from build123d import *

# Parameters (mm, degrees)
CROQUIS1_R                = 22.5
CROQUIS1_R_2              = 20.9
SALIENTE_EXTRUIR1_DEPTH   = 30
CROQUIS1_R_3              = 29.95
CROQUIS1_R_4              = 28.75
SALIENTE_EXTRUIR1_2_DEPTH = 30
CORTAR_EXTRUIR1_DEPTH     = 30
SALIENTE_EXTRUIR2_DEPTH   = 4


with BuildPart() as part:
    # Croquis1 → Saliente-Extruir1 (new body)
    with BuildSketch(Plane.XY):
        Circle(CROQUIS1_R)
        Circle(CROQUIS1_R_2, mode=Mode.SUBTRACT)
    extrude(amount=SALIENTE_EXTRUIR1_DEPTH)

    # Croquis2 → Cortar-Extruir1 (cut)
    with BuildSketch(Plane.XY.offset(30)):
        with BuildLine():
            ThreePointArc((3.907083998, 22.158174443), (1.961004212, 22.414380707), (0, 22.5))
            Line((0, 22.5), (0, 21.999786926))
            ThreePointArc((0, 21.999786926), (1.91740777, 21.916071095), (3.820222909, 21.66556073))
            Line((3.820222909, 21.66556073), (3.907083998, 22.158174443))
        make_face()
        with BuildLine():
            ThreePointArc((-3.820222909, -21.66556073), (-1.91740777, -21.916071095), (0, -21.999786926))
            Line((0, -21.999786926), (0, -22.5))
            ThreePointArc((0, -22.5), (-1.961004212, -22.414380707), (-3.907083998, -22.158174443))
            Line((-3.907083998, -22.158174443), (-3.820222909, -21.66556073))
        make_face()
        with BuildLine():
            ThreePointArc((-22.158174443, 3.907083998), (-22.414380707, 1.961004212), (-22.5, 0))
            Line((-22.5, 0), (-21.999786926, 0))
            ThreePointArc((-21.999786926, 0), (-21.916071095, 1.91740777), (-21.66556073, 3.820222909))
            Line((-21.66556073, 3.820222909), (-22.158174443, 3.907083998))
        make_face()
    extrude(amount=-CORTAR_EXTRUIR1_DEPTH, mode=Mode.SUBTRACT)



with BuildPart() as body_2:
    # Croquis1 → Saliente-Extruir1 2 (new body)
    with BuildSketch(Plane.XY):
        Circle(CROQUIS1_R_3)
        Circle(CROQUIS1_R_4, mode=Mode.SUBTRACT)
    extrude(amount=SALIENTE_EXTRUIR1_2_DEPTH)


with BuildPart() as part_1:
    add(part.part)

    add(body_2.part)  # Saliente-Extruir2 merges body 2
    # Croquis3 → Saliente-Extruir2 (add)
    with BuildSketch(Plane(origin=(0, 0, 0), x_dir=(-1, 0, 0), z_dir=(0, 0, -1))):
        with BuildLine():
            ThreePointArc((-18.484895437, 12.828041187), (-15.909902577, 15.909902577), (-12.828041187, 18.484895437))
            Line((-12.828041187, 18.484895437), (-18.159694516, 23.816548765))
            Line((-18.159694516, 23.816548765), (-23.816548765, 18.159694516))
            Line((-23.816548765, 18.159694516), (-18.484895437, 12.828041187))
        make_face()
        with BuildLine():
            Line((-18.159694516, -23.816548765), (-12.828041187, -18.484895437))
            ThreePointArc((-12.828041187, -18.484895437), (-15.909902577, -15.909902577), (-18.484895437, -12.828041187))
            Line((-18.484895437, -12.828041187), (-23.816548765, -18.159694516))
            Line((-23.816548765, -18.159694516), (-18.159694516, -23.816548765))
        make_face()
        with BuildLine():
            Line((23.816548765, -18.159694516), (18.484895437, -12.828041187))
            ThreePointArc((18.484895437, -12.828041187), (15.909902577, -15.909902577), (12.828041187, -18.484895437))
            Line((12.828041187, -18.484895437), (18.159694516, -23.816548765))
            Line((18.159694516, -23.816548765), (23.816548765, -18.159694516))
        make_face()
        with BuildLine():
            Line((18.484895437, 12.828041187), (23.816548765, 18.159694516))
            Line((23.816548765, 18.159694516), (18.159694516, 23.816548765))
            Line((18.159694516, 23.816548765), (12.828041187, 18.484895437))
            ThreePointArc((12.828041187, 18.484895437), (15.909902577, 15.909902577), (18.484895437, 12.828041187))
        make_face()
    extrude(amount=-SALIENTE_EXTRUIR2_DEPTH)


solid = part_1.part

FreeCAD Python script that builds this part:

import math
import FreeCAD as App
import Part
import Sketcher
from FreeCAD import Vector
Q = App.Units.Quantity

doc = App.newDocument("Part")
body = doc.addObject("PartDesign::Body", "Body")

# Sketch on XY plane
sketch1 = body.newObject("Sketcher::SketchObject", "Sketch")
sketch1.AttachmentSupport = (doc.getObject("XY_Plane"), [""])
sketch1.MapMode = "FlatFace"
sketch1.addGeometry([
    Part.Circle(Vector(0, 0, 0), Vector(0, 0, 1), 22),
    Part.Circle(Vector(0, 0, 0), Vector(0, 0, 1), 21),
], False)
sketch1.addConstraint([
    Sketcher.Constraint("Coincident", 0, 3, -1, 1),
    Sketcher.Constraint("Coincident", 1, 3, -1, 1),
    Sketcher.Constraint("Diameter", 0, 45.0),
    Sketcher.Constraint("Diameter", 1, 41.8),
])
pad1 = body.newObject("PartDesign::Pad", "Pad")
pad1.Profile = sketch1
pad1.Length = 30

# Sketch on XY plane
sketch2 = body.newObject("Sketcher::SketchObject", "Sketch001")
sketch2.AttachmentSupport = (doc.getObject("XY_Plane"), [""])
sketch2.MapMode = "FlatFace"
sketch2.AttachmentOffset = App.Placement(Vector(0, 0, 30), App.Rotation())
sketch2.addGeometry([
    Part.ArcOfCircle(Part.Circle(Vector(0, 0, 0), Vector(0, 0, 1), 22.5), math.radians(80), math.radians(90)),  # 0
    Part.LineSegment(Vector(0, 22.5, 0), Vector(0, 22, 0)),  # 1
    Part.ArcOfCircle(Part.Circle(Vector(0, 0, 0), Vector(0, 0, 1), 22), math.radians(80), math.radians(90)),  # 2
    Part.LineSegment(Vector(3.8, 21.7, 0), Vector(3.9, 22.2, 0)),  # 3
    Part.ArcOfCircle(Part.Circle(Vector(0, 0, 0), Vector(0, 0, 1), 22), math.radians(-100), math.radians(-90)),  # 4
    Part.LineSegment(Vector(-3.8, -21.7, 0), Vector(-3.9, -22.2, 0)),  # 5
    Part.ArcOfCircle(Part.Circle(Vector(0, 0, 0), Vector(0, 0, 1), 22.5), math.radians(-100), math.radians(-90)),  # 6
    Part.LineSegment(Vector(0, -22.5, 0), Vector(0, -22, 0)),  # 7
    Part.ArcOfCircle(Part.Circle(Vector(0, 0, 0), Vector(0, 0, 1), 22.5), math.radians(170), math.radians(180)),  # 8
    Part.LineSegment(Vector(-22.5, 0, 0), Vector(-22, 0, 0)),  # 9
    Part.ArcOfCircle(Part.Circle(Vector(0, 0, 0), Vector(0, 0, 1), 22), math.radians(170), math.radians(180)),  # 10
    Part.LineSegment(Vector(-21.7, 3.8, 0), Vector(-22.2, 3.9, 0)),  # 11
], False)
sketch2.addConstraint([
    Sketcher.Constraint("Coincident", 0, 2, 1, 1),
    Sketcher.Constraint("Coincident", 1, 2, 2, 2),
    Sketcher.Constraint("Coincident", 2, 1, 3, 1),
    Sketcher.Constraint("Coincident", 3, 2, 0, 1),
    Sketcher.Constraint("Coincident", 4, 1, 5, 1),
    Sketcher.Constraint("Coincident", 5, 2, 6, 1),
    Sketcher.Constraint("Coincident", 6, 2, 7, 1),
    Sketcher.Constraint("Coincident", 7, 2, 4, 2),
    Sketcher.Constraint("Coincident", 8, 2, 9, 1),
    Sketcher.Constraint("Coincident", 9, 2, 10, 2),
    Sketcher.Constraint("Coincident", 10, 1, 11, 1),
    Sketcher.Constraint("Coincident", 11, 2, 8, 1),
    Sketcher.Constraint("Vertical", 1),
    Sketcher.Constraint("Vertical", 7),
    Sketcher.Constraint("Horizontal", 9),
    Sketcher.Constraint("Coincident", 0, 3, -1, 1),
    Sketcher.Constraint("Coincident", 2, 3, -1, 1),
    Sketcher.Constraint("Coincident", 4, 3, -1, 1),
    Sketcher.Constraint("Coincident", 6, 3, -1, 1),
    Sketcher.Constraint("Coincident", 8, 3, -1, 1),
    Sketcher.Constraint("Coincident", 10, 3, -1, 1),
    Sketcher.Constraint("Equal", 2, 4),
    Sketcher.Constraint("Equal", 0, 6),
    Sketcher.Constraint("Equal", 6, 8),
    Sketcher.Constraint("Equal", 4, 10),
    Sketcher.Constraint("PointOnObject", 0, 2, -2),
    Sketcher.Constraint("PointOnObject", 6, 2, -2),
    Sketcher.Constraint("PointOnObject", 8, 2, -1),
    Sketcher.Constraint("Parallel", 3, 5),
    Sketcher.Constraint("Perpendicular", 5, 11),
    Sketcher.Constraint("Radius", 0, 22.5),
    Sketcher.Constraint("Angle", 3, Q("80 deg")),
    Sketcher.Constraint("Radius", 2, 21.999787),
    Sketcher.Constraint("DistanceY", -1, 1, 2, 1, 21.665561),
    Sketcher.Constraint("DistanceY", 4, 1, -1, 1, 21.665561),
    Sketcher.Constraint("DistanceX", 10, 1, -1, 1, 21.665561),
])
pocket1 = body.newObject("PartDesign::Pocket", "Pocket")
pocket1.Profile = sketch2
pocket1.Length = 30
body2 = doc.addObject("PartDesign::Body", "Body001")

# Sketch on XY plane
sketch3 = body2.newObject("Sketcher::SketchObject", "Sketch002")
sketch3.AttachmentSupport = (doc.getObject("XY_Plane001"), [""])
sketch3.MapMode = "FlatFace"
sketch3.addGeometry([
    Part.Circle(Vector(0, 0, 0), Vector(0, 0, 1), 30),
    Part.Circle(Vector(0, 0, 0), Vector(0, 0, 1), 29),
], False)
sketch3.addConstraint([
    Sketcher.Constraint("Coincident", 0, 3, -1, 1),
    Sketcher.Constraint("Coincident", 1, 3, -1, 1),
    Sketcher.Constraint("Diameter", 0, 59.9),
    Sketcher.Constraint("Diameter", 1, 57.5),
])
pad2 = body2.newObject("PartDesign::Pad", "Pad001")
pad2.Profile = sketch3
pad2.Length = 30
body.AllowCompound = True
doc.recompute()

boolean = body.newObject("PartDesign::Boolean", "Boolean")
boolean.Type = "Fuse"
boolean.addObjects([body2])

# Sketch on XY plane
sketch4 = body.newObject("Sketcher::SketchObject", "Sketch003")
sketch4.AttachmentSupport = (doc.getObject("XY_Plane"), [""])
sketch4.MapMode = "FlatFace"
sketch4.addGeometry([
    Part.ArcOfCircle(Part.Circle(Vector(0, 0, 0), Vector(0, 0, 1), 22), math.radians(35), math.radians(55)),  # 0
    Part.LineSegment(Vector(13, 18, 0), Vector(18, 24, 0)),  # 1
    Part.LineSegment(Vector(18, 24, 0), Vector(24, 18, 0)),  # 2
    Part.LineSegment(Vector(24, 18, 0), Vector(18, 13, 0)),  # 3
    Part.LineSegment(Vector(18, -24, 0), Vector(13, -18, 0)),  # 4
    Part.ArcOfCircle(Part.Circle(Vector(0, 0, 0), Vector(0, 0, 1), 22), math.radians(-55), math.radians(-35)),  # 5
    Part.LineSegment(Vector(18, -13, 0), Vector(24, -18, 0)),  # 6
    Part.LineSegment(Vector(24, -18, 0), Vector(18, -24, 0)),  # 7
    Part.LineSegment(Vector(-24, -18, 0), Vector(-18, -13, 0)),  # 8
    Part.ArcOfCircle(Part.Circle(Vector(0, 0, 0), Vector(0, 0, 1), 22), math.radians(-145), math.radians(-125)),  # 9
    Part.LineSegment(Vector(-13, -18, 0), Vector(-18, -24, 0)),  # 10
    Part.LineSegment(Vector(-18, -24, 0), Vector(-24, -18, 0)),  # 11
    Part.LineSegment(Vector(-18, 13, 0), Vector(-24, 18, 0)),  # 12
    Part.LineSegment(Vector(-24, 18, 0), Vector(-18, 24, 0)),  # 13
    Part.LineSegment(Vector(-18, 24, 0), Vector(-13, 18, 0)),  # 14
    Part.ArcOfCircle(Part.Circle(Vector(0, 0, 0), Vector(0, 0, 1), 22), math.radians(125), math.radians(145)),  # 15
], False)
sketch4.addConstraint([
    Sketcher.Constraint("Coincident", 0, 2, 1, 1),
    Sketcher.Constraint("Coincident", 1, 2, 2, 1),
    Sketcher.Constraint("Coincident", 2, 2, 3, 1),
    Sketcher.Constraint("Coincident", 3, 2, 0, 1),
    Sketcher.Constraint("Coincident", 4, 2, 5, 1),
    Sketcher.Constraint("Coincident", 5, 2, 6, 1),
    Sketcher.Constraint("Coincident", 6, 2, 7, 1),
    Sketcher.Constraint("Coincident", 7, 2, 4, 1),
    Sketcher.Constraint("Coincident", 8, 2, 9, 1),
    Sketcher.Constraint("Coincident", 9, 2, 10, 1),
    Sketcher.Constraint("Coincident", 10, 2, 11, 1),
    Sketcher.Constraint("Coincident", 11, 2, 8, 1),
    Sketcher.Constraint("Coincident", 12, 2, 13, 1),
    Sketcher.Constraint("Coincident", 13, 2, 14, 1),
    Sketcher.Constraint("Coincident", 14, 2, 15, 1),
    Sketcher.Constraint("Coincident", 15, 2, 12, 1),
    Sketcher.Constraint("Coincident", 0, 3, -1, 1),
    Sketcher.Constraint("Coincident", 5, 3, -1, 1),
    Sketcher.Constraint("Coincident", 9, 3, -1, 1),
    Sketcher.Constraint("Coincident", 15, 3, -1, 1),
    Sketcher.Constraint("Equal", 0, 5),
    Sketcher.Constraint("Equal", 5, 9),
    Sketcher.Constraint("Equal", 9, 15),
    Sketcher.Constraint("Symmetric", 1, 2, 10, 2, -1, 1),
    Sketcher.Constraint("Symmetric", 2, 2, 11, 2, -1, 1),
    Sketcher.Constraint("Symmetric", 6, 2, 12, 2, -1, 1),
    Sketcher.Constraint("Symmetric", 7, 2, 13, 2, -1, 1),
    Sketcher.Constraint("Symmetric", 7, 2, 10, 2, -2),
    Sketcher.Constraint("Symmetric", 6, 2, 11, 2, -2),
    Sketcher.Constraint("Perpendicular", 1, 2),
    Sketcher.Constraint("Perpendicular", 2, 3),
    Sketcher.Constraint("Perpendicular", 3, 4),
    Sketcher.Constraint("Parallel", 4, 6),
    Sketcher.Constraint("Perpendicular", 6, 7),
    Sketcher.Constraint("Parallel", 7, 8),
    Sketcher.Constraint("Parallel", 8, 10),
    Sketcher.Constraint("Parallel", 11, 12),
    Sketcher.Constraint("Perpendicular", 13, 14),
    Sketcher.Constraint("Equal", 1, 3),
    Sketcher.Constraint("Radius", 0, 22.5),
    Sketcher.Constraint("Distance", 2, 8.0),
    Sketcher.Constraint("DistanceY", 2, 2, 0, 2, 0.325201),
])
pad3 = body.newObject("PartDesign::Pad", "Pad002")
pad3.Profile = sketch4
pad3.Length = 4

doc.recompute()
